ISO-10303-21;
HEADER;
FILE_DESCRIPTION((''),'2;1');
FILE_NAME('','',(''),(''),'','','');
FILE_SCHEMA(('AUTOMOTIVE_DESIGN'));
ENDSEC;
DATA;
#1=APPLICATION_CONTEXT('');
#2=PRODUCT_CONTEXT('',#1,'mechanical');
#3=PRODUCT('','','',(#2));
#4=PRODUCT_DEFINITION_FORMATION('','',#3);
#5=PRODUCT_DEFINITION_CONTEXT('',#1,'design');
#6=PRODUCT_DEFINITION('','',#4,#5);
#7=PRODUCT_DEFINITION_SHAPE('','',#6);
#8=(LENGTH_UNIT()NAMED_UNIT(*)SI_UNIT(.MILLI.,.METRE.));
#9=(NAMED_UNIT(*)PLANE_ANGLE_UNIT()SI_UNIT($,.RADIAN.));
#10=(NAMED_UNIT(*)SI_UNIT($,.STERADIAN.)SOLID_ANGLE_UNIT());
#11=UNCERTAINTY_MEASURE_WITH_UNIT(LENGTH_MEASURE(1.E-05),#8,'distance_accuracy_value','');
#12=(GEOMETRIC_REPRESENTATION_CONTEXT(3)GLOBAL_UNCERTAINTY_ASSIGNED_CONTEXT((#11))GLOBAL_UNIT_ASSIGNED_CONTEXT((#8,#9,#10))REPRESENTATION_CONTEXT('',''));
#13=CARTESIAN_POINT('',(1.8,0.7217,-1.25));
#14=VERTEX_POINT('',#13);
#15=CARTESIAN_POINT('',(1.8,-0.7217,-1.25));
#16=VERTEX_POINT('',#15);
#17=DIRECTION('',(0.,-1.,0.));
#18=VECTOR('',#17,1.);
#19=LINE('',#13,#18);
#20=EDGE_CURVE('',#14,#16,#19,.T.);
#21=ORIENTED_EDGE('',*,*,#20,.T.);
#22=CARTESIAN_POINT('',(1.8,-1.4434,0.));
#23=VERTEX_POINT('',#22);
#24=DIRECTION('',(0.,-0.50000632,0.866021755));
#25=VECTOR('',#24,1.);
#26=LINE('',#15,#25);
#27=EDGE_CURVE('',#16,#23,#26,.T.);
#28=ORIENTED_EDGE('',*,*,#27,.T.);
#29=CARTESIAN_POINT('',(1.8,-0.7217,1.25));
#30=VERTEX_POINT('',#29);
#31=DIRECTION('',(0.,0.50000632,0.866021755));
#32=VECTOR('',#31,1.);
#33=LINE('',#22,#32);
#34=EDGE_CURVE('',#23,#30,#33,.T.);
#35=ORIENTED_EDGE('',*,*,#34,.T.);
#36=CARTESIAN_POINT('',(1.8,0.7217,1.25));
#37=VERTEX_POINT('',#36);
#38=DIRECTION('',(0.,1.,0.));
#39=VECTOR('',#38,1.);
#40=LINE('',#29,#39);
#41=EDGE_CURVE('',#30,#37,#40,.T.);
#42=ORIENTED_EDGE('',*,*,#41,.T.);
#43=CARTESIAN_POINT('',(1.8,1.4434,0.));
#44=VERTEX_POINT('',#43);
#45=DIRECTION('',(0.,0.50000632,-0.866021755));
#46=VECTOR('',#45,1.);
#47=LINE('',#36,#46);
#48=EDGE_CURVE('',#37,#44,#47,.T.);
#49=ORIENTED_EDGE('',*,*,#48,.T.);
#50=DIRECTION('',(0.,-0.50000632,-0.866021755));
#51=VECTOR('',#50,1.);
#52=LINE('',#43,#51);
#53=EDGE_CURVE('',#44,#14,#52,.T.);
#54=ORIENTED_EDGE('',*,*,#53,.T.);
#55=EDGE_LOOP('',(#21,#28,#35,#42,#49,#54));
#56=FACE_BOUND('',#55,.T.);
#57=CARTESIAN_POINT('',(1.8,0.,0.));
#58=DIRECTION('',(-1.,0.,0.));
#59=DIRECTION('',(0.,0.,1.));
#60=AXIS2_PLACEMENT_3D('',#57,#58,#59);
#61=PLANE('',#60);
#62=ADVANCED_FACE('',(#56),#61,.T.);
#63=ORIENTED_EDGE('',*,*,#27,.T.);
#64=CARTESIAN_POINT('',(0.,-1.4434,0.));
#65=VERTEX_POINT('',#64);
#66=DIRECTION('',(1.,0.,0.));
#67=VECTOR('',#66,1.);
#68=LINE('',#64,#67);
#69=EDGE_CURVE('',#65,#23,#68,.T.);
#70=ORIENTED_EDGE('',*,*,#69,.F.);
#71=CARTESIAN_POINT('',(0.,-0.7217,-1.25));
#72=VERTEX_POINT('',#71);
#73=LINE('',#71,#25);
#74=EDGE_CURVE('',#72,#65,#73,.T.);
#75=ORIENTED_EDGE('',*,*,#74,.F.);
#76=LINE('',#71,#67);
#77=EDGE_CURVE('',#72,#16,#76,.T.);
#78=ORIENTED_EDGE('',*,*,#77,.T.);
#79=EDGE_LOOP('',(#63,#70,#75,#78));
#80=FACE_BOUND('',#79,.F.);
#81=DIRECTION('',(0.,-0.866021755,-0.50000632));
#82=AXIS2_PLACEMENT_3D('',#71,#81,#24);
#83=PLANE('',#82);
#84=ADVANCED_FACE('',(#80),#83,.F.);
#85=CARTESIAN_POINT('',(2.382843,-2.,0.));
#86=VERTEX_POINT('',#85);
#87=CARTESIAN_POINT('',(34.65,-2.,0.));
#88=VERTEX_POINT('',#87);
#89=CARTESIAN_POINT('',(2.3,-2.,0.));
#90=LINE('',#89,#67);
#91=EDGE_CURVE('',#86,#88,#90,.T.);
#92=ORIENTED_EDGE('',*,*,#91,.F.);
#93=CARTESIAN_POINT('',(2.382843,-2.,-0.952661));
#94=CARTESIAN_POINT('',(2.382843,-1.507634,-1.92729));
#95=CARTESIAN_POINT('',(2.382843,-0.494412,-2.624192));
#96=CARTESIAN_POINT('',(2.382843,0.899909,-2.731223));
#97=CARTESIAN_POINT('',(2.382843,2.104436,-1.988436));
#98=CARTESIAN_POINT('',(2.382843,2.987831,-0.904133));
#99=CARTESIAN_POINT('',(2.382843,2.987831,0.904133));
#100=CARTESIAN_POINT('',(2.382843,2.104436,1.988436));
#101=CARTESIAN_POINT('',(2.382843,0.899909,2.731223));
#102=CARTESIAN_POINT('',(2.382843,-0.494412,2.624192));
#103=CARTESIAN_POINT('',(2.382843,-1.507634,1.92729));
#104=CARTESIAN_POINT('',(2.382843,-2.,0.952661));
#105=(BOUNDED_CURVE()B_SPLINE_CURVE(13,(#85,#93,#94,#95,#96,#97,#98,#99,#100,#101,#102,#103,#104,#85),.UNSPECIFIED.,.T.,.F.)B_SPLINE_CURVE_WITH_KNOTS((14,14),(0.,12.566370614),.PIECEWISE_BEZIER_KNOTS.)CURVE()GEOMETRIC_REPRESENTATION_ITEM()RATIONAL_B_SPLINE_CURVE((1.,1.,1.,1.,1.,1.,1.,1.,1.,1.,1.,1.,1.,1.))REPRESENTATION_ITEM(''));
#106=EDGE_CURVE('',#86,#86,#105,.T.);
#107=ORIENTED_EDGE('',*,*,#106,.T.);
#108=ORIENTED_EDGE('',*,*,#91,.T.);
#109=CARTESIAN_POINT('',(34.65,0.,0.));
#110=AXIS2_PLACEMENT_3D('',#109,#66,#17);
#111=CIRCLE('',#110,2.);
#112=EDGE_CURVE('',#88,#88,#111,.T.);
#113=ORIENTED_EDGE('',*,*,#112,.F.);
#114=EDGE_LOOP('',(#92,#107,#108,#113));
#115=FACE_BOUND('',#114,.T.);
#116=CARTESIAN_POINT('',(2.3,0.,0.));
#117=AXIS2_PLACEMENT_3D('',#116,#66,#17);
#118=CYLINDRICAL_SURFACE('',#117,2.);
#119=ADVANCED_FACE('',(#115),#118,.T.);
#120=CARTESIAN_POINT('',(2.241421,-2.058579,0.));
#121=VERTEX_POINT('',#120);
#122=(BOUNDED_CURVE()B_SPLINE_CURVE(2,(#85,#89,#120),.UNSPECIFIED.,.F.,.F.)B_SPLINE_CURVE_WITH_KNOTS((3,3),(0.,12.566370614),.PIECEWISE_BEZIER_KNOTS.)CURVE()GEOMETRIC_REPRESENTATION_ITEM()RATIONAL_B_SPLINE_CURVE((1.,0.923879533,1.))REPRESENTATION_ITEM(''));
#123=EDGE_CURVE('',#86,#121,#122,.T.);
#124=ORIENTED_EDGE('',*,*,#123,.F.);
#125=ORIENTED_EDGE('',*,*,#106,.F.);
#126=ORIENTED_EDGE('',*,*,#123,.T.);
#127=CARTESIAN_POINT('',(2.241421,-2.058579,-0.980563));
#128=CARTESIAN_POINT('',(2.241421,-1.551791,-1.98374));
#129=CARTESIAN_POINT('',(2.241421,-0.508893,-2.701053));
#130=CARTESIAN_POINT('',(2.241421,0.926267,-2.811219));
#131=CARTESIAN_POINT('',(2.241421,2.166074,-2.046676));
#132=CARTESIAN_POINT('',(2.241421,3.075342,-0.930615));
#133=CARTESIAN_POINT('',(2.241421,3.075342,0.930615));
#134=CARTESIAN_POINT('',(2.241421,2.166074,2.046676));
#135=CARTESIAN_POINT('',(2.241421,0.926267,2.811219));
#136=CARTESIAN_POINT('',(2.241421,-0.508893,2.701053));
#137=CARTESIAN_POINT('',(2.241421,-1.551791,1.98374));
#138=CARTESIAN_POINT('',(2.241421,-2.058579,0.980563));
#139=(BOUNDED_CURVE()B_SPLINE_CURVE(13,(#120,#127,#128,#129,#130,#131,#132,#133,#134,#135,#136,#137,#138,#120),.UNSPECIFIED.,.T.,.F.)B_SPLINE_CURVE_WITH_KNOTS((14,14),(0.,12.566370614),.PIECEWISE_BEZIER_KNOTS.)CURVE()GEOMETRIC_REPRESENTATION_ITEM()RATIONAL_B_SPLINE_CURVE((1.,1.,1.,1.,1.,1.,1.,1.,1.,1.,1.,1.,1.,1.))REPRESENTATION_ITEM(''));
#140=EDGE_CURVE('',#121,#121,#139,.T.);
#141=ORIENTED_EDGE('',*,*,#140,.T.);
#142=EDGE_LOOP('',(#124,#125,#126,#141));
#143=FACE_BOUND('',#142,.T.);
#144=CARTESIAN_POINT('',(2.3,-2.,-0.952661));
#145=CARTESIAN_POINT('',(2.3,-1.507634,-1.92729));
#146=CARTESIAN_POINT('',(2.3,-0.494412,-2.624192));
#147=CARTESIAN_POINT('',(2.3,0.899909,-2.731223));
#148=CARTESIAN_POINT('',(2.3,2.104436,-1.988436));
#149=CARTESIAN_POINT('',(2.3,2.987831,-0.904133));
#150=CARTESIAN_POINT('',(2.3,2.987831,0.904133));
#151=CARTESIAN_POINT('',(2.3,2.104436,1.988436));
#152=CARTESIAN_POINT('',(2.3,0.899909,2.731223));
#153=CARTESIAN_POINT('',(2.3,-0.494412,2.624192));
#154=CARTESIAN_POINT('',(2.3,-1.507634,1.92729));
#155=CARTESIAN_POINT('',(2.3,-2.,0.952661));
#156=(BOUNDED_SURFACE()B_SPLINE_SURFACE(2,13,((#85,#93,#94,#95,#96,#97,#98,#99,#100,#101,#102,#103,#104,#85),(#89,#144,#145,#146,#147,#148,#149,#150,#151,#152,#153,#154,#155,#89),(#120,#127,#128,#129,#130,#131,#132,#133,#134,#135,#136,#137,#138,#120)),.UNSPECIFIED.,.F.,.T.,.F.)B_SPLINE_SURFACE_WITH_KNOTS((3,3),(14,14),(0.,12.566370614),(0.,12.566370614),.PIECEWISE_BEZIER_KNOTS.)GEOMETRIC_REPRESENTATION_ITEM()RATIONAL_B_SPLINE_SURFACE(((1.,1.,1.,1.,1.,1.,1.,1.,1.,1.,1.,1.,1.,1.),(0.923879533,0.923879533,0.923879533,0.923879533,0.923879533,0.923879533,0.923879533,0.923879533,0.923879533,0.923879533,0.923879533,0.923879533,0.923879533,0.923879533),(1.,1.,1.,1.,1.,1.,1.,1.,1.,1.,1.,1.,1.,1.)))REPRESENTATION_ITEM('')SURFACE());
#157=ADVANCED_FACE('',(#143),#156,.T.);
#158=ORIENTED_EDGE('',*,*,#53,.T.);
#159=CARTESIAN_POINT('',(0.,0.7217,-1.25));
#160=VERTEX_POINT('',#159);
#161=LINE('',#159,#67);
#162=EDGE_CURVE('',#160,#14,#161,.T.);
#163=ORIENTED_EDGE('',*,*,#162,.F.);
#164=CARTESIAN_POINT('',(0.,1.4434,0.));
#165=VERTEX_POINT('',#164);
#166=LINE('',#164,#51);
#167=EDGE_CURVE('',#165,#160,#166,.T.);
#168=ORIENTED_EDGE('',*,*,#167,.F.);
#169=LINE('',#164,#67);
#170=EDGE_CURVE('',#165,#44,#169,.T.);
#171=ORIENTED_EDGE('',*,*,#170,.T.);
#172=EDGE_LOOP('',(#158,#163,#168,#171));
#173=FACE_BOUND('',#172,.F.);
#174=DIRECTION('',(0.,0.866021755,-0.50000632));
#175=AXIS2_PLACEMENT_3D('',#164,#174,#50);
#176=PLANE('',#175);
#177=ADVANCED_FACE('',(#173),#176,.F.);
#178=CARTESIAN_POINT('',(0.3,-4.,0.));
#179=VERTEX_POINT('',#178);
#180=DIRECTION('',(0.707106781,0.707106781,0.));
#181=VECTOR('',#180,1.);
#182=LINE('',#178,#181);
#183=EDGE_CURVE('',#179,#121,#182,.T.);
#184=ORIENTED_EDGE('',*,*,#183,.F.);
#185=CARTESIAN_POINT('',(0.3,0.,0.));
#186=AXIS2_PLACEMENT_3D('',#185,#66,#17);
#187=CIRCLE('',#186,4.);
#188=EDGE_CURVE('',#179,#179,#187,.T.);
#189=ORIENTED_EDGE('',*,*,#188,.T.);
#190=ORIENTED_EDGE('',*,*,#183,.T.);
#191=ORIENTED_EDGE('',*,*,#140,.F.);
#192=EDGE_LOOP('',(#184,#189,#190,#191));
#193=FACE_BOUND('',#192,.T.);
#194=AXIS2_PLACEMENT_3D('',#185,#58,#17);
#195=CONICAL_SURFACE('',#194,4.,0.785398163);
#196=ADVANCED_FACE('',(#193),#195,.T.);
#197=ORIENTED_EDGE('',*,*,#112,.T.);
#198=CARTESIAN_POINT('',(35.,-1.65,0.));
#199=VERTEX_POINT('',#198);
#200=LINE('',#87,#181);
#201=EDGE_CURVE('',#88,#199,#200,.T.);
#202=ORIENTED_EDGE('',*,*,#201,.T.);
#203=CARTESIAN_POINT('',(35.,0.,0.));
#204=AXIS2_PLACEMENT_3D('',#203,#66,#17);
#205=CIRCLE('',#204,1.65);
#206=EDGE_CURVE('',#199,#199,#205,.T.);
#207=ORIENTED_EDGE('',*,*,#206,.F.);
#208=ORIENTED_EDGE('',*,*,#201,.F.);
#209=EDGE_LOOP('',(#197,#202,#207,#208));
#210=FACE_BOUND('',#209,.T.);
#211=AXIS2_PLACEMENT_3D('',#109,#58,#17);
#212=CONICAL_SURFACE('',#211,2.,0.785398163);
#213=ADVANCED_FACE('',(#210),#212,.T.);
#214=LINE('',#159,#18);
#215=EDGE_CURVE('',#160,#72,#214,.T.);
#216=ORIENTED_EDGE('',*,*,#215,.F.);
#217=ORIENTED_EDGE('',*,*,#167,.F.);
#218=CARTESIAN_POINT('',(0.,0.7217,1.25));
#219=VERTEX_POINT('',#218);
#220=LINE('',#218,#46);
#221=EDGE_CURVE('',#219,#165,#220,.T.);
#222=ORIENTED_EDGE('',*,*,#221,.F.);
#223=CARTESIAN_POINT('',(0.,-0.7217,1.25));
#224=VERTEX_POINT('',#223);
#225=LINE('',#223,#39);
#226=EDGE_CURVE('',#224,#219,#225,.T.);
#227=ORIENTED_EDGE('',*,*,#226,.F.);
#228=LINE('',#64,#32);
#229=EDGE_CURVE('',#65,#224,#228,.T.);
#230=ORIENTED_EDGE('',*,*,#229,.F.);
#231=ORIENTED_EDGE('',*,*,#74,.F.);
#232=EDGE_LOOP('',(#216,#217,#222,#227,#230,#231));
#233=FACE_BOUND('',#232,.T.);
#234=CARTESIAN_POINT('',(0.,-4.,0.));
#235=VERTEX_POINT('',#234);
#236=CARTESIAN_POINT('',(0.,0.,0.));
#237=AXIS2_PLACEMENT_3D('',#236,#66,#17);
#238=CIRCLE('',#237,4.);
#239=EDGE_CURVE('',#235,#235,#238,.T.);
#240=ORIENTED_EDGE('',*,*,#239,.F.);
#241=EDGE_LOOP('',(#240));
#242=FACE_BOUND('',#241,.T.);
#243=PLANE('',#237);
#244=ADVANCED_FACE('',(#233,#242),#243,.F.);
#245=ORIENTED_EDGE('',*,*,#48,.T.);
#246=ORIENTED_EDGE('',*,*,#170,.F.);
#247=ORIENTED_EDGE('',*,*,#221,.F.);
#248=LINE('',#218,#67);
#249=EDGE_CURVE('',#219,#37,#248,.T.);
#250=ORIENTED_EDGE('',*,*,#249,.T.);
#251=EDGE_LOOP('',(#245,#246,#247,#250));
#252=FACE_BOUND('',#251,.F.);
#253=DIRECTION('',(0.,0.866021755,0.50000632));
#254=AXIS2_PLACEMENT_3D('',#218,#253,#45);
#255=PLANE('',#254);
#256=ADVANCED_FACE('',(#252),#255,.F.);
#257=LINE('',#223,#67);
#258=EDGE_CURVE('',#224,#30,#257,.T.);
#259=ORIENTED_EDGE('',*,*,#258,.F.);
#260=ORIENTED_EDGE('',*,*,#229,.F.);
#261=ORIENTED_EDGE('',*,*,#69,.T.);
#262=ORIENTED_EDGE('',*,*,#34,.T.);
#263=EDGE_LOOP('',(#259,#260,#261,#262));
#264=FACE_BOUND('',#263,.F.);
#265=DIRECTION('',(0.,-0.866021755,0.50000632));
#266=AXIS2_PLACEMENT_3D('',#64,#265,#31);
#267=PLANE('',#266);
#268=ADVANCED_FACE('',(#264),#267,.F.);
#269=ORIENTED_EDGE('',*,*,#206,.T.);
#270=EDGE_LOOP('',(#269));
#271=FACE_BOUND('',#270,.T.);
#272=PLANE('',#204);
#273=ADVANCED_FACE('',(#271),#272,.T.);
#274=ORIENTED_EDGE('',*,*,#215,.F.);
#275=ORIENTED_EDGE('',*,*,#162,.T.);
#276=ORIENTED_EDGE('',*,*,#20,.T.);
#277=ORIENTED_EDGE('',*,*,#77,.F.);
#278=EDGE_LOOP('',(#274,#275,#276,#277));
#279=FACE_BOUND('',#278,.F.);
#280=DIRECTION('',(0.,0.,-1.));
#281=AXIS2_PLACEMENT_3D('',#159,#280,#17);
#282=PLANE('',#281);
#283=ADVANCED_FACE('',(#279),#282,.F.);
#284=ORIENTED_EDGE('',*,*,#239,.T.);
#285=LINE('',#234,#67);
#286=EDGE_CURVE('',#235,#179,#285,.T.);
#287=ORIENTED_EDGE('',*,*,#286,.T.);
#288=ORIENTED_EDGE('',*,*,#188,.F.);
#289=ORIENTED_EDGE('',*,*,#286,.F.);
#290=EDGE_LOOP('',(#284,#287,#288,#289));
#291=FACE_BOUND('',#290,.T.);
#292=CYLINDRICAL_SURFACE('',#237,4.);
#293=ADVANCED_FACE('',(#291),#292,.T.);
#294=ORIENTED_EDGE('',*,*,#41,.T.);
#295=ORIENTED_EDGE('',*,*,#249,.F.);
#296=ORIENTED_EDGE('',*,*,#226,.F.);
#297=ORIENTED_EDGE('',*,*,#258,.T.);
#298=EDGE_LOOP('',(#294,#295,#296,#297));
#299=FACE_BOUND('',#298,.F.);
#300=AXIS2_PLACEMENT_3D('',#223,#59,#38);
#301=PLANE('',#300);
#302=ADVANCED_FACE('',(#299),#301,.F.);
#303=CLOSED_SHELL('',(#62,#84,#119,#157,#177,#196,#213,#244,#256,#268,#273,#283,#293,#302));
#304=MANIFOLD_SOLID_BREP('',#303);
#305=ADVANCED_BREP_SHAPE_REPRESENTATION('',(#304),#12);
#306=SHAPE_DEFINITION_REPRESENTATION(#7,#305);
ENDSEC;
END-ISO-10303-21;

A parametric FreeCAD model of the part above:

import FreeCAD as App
import Part
import Sketcher
Q = App.Units.Quantity


def edges_at(feature, points):
    """Names of the edges that pass closest to the given points."""
    edges = feature.Shape.Edges
    near = lambda p: min(range(len(edges)), key=lambda i: edges[i].distToShape(Part.Vertex(*p))[0])
    return sorted({f"Edge{near(p) + 1}" for p in points})

doc = App.newDocument("Part")
body = doc.addObject("PartDesign::Body", "Body")

# Sketch on XY plane
sketch1 = doc.addObject("Sketcher::SketchObject", "Sketch")
body.addObject(sketch1)
sketch1.AttachmentSupport = (doc.XY_Plane, [""])
sketch1.MapMode = "FlatFace"
sketch1.addGeometry([
    Part.LineSegment(App.Vector(2.3, -2, 0), App.Vector(35, -2, 0)),  # 0
    Part.LineSegment(App.Vector(35, -2, 0), App.Vector(35, 0, 0)),  # 1
    Part.LineSegment(App.Vector(35, 0, 0), App.Vector(0, 0, 0)),  # 2
    Part.LineSegment(App.Vector(0, 0, 0), App.Vector(0, -4, 0)),  # 3
    Part.LineSegment(App.Vector(0, -4, 0), App.Vector(0.3, -4, 0)),  # 4
    Part.LineSegment(App.Vector(0.3, -4, 0), App.Vector(2.3, -2, 0)),  # 5
], False)
sketch1.addConstraint([
    Sketcher.Constraint("Coincident", 0, 2, 1, 1),
    Sketcher.Constraint("Coincident", 1, 2, 2, 1),
    Sketcher.Constraint("Coincident", 2, 2, 3, 1),
    Sketcher.Constraint("Coincident", 3, 2, 4, 1),
    Sketcher.Constraint("Coincident", 4, 2, 5, 1),
    Sketcher.Constraint("Coincident", 5, 2, 0, 1),
    Sketcher.Constraint("Horizontal", 0),
    Sketcher.Constraint("Vertical", 1),
    Sketcher.Constraint("Horizontal", 2),
    Sketcher.Constraint("Vertical", 3),
    Sketcher.Constraint("Horizontal", 4),
    Sketcher.Constraint("Coincident", 2, 2, -1, 1),
    Sketcher.Constraint("DistanceX", 2, 2, 2, 1, 35.0),
    Sketcher.Constraint("DistanceY", 1, 1, 1, 2, 2.0),
    Sketcher.Constraint("DistanceY", 3, 2, 3, 1, 4.0),
    Sketcher.Constraint("Angle", 5, Q("45 deg")),
    Sketcher.Constraint("DistanceX", 4, 1, 4, 2, 0.3),
])
revolution = doc.addObject("PartDesign::Revolution", "Revolution")
body.addObject(revolution)
revolution.Profile = sketch1
revolution.ReferenceAxis = (sketch1, ["H_Axis"])
revolution.Angle = 360

# Sketch on YZ plane
sketch2 = doc.addObject("Sketcher::SketchObject", "Sketch001")
body.addObject(sketch2)
sketch2.AttachmentSupport = (doc.YZ_Plane, [""])
sketch2.MapMode = "FlatFace"
sketch2.addGeometry([
    Part.LineSegment(App.Vector(1.4434, 0, 0), App.Vector(0.7217, -1.25, 0)),  # 0
    Part.LineSegment(App.Vector(0.7217, -1.25, 0), App.Vector(-0.7217, -1.25, 0)),  # 1
    Part.LineSegment(App.Vector(-0.7217, -1.25, 0), App.Vector(-1.4434, 0, 0)),  # 2
    Part.LineSegment(App.Vector(-1.4434, 0, 0), App.Vector(-0.7217, 1.25, 0)),  # 3
    Part.LineSegment(App.Vector(-0.7217, 1.25, 0), App.Vector(0.7217, 1.25, 0)),  # 4
    Part.LineSegment(App.Vector(0.7217, 1.25, 0), App.Vector(1.4434, 0, 0)),  # 5
], False)
sketch2.addConstraint([
    Sketcher.Constraint("Coincident", 0, 2, 1, 1),
    Sketcher.Constraint("Coincident", 1, 2, 2, 1),
    Sketcher.Constraint("Coincident", 2, 2, 3, 1),
    Sketcher.Constraint("Coincident", 3, 2, 4, 1),
    Sketcher.Constraint("Coincident", 4, 2, 5, 1),
    Sketcher.Constraint("Coincident", 5, 2, 0, 1),
    Sketcher.Constraint("Horizontal", 1),
    Sketcher.Constraint("Horizontal", 4),
    Sketcher.Constraint("Symmetric", 0, 2, 3, 2, -1, 1),
    Sketcher.Constraint("Symmetric", 2, 2, 5, 2, -1, 1),
    Sketcher.Constraint("PointOnObject", 2, 2, -1),
    Sketcher.Constraint("Parallel", 2, 5),
    Sketcher.Constraint("Vertical", 1, 2, 3, 2),
    Sketcher.Constraint("Angle", 0, Q("-120.0004 deg")),
    Sketcher.Constraint("DistanceY", 1, 2, 3, 2, 2.5),
    Sketcher.Constraint("DistanceX", 1, 2, 1, 1, 1.4434),
])
pocket1 = doc.addObject("PartDesign::Pocket", "Pocket")
body.addObject(pocket1)
pocket1.Profile = sketch2
pocket1.Length = 1.8
pocket1.Reversed = True
doc.recompute()

fillet = doc.addObject("PartDesign::Fillet", "Fillet")
body.addObject(fillet)
fillet.Base = (pocket1, edges_at(pocket1, [(2.3, 2, 0)]))
fillet.Radius = 0.2
doc.recompute()

chamfer = doc.addObject("PartDesign::Chamfer", "Chamfer")
body.addObject(chamfer)
chamfer.Base = (fillet, edges_at(fillet, [(35, 2, 0)]))
chamfer.Size = 0.35

doc.recompute()
